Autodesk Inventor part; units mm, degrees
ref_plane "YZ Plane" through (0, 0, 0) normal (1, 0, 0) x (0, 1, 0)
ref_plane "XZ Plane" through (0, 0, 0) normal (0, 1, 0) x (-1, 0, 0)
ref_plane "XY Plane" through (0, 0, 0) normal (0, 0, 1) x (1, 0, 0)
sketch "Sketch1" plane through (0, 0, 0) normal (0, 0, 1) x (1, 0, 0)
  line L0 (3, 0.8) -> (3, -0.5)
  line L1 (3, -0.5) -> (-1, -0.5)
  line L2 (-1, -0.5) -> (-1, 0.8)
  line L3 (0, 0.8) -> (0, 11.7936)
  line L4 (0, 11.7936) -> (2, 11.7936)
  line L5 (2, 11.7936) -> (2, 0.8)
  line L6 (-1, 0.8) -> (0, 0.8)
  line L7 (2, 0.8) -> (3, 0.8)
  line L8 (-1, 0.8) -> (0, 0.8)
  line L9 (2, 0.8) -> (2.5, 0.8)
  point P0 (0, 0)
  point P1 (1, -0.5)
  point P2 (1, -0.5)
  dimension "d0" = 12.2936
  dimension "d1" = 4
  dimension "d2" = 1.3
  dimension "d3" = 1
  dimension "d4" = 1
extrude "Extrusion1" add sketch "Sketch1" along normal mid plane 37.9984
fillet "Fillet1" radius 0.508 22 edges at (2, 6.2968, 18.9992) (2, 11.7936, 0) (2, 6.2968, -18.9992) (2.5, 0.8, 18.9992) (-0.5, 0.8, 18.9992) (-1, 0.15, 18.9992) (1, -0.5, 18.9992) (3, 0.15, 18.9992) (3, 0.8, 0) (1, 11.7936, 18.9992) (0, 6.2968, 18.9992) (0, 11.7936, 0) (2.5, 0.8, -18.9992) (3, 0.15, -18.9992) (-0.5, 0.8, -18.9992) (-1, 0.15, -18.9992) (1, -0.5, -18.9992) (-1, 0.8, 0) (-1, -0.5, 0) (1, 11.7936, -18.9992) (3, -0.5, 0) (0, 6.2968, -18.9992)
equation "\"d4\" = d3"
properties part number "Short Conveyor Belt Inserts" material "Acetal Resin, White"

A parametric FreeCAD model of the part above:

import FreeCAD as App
import Part
import Sketcher

V = App.Vector
Q = App.Units.Quantity


def edges_at(feature, points):
    """Names of the edges that pass closest to the given points."""
    edges = feature.Shape.Edges
    near = lambda p: min(range(len(edges)), key=lambda i: edges[i].distToShape(Part.Vertex(*p))[0])
    return sorted({f"Edge{near(p) + 1}" for p in points})


def add_polygon(sketch, points):
    """Adds a closed chain of lines whose ends are joined by coincident constraints."""
    first, n = sketch.GeometryCount, len(points)
    for a, b in zip(points, points[1:] + points[:1]):
        sketch.addGeometry(Part.LineSegment(App.Vector(*a, 0), App.Vector(*b, 0)), False)
    for i in range(n):
        sketch.addConstraint(Sketcher.Constraint("Coincident", first + i, 2, first + (i + 1) % n, 1))

doc = App.newDocument("Part")
body = doc.addObject("PartDesign::Body", "Body")

sketch1 = doc.addObject("Sketcher::SketchObject", "Sketch")
body.addObject(sketch1)
sketch1.AttachmentSupport = (doc.XY_Plane, [""])
sketch1.MapMode = "FlatFace"
add_polygon(sketch1, [(3, -0.5), (3, 0.8), (2, 0.8), (2, 11.8), (0, 11.8), (0, 0.8), (-1, 0.8), (-1, -0.5)])
sketch1.addConstraint([
    Sketcher.Constraint("Vertical", 0),
    Sketcher.Constraint("Horizontal", 1),
    Sketcher.Constraint("Vertical", 2),
    Sketcher.Constraint("Horizontal", 3),
    Sketcher.Constraint("Vertical", 4),
    Sketcher.Constraint("Horizontal", 5),
    Sketcher.Constraint("Vertical", 6),
    Sketcher.Constraint("Horizontal", 7),
    Sketcher.Constraint("PointOnObject", 3, 2, -2),
    Sketcher.Constraint("Horizontal", 1, 2, 4, 2),
    Sketcher.Constraint("Equal", 1, 5),
    Sketcher.Constraint("DistanceX", 1, 2, 1, 1, Q("1 mm")),
    Sketcher.Constraint("DistanceX", 7, 1, 7, 2, Q("4 mm")),
    Sketcher.Constraint("DistanceY", 0, 1, 0, 2, Q("1.3 mm")),
    Sketcher.Constraint("DistanceY", -1, 1, 0, 2, Q("0.8 mm")),
    Sketcher.Constraint("DistanceY", 6, 2, 3, 2, Q("12.2936 mm")),
])
pad1 = doc.addObject("PartDesign::Pad", "Pad")
body.addObject(pad1)
pad1.Profile = sketch1
pad1.Length = 37.9984
pad1.Midplane = True
doc.recompute()

fillet = doc.addObject("PartDesign::Fillet", "Fillet")
body.addObject(fillet)
fillet.Base = (pad1, edges_at(pad1, [
    (2, 6.297, 18.999),
    (2, 11.794, 0),
    (2, 6.297, -18.999),
    (2.5, 0.8, 18.999),
    (-0.5, 0.8, 18.999),
    (-1, 0.15, 18.999),
    (1, -0.5, 18.999),
    (3, 0.15, 18.999),
    (3, 0.8, 0),
    (1, 11.794, 18.999),
    (0, 6.297, 18.999),
    (0, 11.794, 0),
    (2.5, 0.8, -18.999),
    (3, 0.15, -18.999),
    (-0.5, 0.8, -18.999),
    (-1, 0.15, -18.999),
    (1, -0.5, -18.999),
    (-1, 0.8, 0),
    (-1, -0.5, 0),
    (1, 11.794, -18.999),
    (3, -0.5, 0),
    (0, 6.297, -18.999),
]))
fillet.Radius = 0.508

doc.recompute()
